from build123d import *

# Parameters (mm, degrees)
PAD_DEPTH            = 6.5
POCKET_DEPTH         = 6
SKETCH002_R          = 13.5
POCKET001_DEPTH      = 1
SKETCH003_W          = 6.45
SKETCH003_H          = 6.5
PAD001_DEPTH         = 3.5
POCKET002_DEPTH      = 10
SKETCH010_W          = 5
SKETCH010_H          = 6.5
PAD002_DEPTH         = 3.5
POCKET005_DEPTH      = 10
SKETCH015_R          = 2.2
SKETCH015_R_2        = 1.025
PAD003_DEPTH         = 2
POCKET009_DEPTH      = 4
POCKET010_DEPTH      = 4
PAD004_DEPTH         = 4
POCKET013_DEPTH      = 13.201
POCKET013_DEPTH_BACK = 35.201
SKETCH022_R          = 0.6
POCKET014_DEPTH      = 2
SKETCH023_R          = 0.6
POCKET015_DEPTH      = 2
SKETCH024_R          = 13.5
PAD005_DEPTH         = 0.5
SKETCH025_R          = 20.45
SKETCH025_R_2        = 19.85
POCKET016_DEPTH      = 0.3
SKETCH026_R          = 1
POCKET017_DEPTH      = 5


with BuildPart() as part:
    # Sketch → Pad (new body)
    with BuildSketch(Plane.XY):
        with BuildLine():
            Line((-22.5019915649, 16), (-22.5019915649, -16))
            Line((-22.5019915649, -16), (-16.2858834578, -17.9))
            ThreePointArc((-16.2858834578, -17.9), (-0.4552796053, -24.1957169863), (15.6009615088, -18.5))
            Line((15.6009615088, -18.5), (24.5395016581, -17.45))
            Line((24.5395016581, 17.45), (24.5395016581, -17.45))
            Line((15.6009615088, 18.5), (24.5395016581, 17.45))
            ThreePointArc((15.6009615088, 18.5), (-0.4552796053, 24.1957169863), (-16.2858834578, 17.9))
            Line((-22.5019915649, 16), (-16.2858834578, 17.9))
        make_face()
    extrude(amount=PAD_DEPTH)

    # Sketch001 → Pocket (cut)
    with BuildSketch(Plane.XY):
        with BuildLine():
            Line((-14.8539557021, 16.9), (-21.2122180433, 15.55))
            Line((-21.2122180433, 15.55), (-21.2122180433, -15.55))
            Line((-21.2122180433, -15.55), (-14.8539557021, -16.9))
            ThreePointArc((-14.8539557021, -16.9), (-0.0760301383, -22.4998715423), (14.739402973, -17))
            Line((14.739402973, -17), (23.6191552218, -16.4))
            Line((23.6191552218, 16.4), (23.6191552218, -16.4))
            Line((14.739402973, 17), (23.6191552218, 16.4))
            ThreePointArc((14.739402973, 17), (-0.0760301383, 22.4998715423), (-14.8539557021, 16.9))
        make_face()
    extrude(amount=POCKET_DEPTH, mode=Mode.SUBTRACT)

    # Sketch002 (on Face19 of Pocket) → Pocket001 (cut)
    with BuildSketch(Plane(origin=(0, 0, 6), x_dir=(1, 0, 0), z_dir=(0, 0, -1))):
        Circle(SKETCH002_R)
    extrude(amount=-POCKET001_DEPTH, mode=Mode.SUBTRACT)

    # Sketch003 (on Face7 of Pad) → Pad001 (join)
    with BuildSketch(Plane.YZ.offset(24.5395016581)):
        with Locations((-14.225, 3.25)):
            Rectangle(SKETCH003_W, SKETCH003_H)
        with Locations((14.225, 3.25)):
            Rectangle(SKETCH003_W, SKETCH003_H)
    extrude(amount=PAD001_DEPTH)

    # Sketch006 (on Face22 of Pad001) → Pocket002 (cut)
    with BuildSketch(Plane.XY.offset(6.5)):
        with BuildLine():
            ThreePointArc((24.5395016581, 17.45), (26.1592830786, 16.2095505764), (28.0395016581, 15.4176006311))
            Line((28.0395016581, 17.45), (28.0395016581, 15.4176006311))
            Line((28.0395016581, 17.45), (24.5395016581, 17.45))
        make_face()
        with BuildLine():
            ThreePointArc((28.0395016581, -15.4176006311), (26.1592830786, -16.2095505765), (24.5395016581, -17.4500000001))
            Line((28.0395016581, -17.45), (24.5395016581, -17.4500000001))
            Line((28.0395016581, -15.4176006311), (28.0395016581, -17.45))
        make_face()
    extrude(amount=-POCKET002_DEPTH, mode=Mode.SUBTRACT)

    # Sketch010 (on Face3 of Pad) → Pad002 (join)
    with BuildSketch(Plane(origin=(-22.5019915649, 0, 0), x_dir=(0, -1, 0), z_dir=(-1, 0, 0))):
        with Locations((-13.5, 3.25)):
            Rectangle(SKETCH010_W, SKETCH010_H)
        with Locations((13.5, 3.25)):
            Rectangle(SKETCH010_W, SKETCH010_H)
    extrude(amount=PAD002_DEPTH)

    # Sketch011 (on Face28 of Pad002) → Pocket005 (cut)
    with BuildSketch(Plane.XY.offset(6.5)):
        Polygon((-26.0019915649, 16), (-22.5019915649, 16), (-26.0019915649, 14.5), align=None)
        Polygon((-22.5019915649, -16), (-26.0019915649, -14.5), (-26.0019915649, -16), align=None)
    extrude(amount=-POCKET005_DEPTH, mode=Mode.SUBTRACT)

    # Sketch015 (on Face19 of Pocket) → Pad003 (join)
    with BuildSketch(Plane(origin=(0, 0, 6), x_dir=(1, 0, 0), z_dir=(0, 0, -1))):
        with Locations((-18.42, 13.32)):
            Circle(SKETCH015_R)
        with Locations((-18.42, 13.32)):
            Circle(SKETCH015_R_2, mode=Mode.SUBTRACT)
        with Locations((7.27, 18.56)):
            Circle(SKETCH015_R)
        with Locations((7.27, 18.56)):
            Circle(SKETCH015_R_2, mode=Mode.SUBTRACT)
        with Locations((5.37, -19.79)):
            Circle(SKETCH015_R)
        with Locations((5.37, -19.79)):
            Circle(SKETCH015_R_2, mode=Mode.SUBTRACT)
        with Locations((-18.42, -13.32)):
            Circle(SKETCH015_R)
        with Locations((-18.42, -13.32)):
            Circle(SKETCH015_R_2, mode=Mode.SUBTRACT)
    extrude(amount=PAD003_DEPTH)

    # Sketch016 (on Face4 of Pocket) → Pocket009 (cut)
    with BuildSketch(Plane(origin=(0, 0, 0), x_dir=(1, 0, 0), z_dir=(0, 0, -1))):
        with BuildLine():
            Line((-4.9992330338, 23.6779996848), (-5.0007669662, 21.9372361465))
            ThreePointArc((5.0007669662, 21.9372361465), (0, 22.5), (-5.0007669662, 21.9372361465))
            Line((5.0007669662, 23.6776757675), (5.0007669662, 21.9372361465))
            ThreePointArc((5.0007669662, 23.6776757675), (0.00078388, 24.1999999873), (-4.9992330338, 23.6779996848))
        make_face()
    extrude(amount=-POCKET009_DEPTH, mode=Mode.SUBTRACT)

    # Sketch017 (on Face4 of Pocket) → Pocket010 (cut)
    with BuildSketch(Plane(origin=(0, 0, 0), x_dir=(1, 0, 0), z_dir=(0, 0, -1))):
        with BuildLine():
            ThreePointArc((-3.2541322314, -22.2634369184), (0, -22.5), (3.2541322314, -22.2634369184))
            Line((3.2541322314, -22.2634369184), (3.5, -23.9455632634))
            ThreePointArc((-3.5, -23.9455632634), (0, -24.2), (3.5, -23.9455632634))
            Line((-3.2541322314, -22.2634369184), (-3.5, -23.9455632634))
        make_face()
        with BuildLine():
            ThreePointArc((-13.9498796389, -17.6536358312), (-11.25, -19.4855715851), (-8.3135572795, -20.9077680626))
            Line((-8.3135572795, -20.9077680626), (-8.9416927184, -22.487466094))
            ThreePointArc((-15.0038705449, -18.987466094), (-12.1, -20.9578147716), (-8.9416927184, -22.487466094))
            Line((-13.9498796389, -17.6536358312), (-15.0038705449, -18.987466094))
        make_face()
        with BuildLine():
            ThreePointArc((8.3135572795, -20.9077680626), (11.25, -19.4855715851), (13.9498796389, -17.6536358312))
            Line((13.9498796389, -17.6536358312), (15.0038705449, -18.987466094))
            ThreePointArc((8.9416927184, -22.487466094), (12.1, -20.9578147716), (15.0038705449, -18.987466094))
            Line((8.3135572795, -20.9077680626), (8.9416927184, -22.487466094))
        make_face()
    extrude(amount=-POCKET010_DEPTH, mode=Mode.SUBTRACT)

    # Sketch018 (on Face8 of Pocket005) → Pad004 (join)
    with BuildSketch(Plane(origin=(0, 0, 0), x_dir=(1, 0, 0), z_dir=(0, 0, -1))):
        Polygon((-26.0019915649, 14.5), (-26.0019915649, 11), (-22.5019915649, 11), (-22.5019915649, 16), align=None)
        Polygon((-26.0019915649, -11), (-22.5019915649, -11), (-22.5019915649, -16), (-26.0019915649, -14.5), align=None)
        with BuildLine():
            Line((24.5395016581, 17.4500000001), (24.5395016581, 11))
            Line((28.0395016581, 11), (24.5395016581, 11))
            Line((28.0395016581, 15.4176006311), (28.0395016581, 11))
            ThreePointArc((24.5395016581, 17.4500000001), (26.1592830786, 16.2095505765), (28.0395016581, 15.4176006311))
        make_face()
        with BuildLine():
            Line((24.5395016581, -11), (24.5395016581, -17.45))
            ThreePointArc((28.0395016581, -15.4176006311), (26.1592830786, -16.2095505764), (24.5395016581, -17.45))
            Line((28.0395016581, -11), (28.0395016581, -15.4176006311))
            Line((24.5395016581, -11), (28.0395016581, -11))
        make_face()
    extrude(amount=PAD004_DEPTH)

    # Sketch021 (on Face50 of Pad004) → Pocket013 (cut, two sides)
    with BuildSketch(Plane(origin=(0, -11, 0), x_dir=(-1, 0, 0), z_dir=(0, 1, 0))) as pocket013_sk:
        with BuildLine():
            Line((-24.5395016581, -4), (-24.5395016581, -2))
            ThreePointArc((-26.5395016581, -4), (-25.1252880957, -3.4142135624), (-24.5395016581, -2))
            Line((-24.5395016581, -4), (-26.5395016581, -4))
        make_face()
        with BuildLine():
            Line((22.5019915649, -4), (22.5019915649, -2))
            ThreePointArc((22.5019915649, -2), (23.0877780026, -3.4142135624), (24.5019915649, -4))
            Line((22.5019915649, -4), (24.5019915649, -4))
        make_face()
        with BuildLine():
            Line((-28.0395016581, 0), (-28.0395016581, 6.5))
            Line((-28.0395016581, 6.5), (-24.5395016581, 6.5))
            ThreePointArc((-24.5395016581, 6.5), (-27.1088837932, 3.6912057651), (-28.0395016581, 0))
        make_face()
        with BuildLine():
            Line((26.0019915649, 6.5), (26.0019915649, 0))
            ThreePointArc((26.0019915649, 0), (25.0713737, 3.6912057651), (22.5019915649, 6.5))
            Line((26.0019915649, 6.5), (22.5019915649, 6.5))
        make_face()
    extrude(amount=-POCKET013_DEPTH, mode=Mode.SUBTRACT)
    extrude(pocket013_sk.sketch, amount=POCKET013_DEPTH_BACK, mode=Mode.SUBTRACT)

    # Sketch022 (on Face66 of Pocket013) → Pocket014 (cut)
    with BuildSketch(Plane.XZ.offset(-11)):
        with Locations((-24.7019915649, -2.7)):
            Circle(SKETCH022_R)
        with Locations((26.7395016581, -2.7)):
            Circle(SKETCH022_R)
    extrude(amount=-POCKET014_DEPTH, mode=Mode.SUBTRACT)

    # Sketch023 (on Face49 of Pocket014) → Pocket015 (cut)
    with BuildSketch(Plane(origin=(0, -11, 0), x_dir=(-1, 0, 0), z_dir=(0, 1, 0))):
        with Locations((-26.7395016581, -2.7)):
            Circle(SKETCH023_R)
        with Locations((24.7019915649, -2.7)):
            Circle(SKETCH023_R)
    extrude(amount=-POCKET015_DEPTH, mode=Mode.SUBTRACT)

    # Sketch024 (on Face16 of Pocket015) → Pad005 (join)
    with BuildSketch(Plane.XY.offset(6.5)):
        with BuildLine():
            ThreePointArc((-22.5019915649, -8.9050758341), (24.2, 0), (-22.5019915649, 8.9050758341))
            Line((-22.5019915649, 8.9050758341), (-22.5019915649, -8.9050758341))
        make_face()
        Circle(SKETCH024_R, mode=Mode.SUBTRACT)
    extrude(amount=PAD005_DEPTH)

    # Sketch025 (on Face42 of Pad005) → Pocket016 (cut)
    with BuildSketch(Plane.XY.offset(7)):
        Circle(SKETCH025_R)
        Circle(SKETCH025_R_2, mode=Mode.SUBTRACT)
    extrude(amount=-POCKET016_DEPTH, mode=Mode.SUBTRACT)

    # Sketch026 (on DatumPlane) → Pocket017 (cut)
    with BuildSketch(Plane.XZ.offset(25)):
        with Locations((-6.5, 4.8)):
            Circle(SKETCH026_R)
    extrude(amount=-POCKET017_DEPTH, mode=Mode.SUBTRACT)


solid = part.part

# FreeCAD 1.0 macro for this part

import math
import FreeCAD as App
import Part
import Sketcher

V = App.Vector
Q = App.Units.Quantity

doc = App.newDocument("Part")
body = doc.addObject("PartDesign::Body", "Body")

sketch1 = body.newObject("Sketcher::SketchObject", "Sketch")
sketch1.AttachmentSupport = (doc.getObject("XY_Plane"), [""])
sketch1.MapMode = "FlatFace"
sketch1.addGeometry([
    Part.LineSegment(V(-22.501992, 16, 0), V(-22.501992, -16, 0)),
    Part.LineSegment(V(-22.501992, -16, 0), V(-16.285883, -17.9, 0)),
    Part.ArcOfCircle(Part.Circle(V(0, 0, 0), V(0, 0, 1), 24.2), math.radians(-132.296737), math.radians(-49.859225)),
    Part.LineSegment(V(15.600962, -18.5, 0), V(24.539502, -17.45, 0)),
    Part.LineSegment(V(24.539502, -17.45, 0), V(24.539502, 17.45, 0)),
    Part.LineSegment(V(24.539502, 17.45, 0), V(15.600962, 18.5, 0)),
    Part.ArcOfCircle(Part.Circle(V(0, 0, 0), V(0, 0, 1), 24.2), math.radians(49.859225), math.radians(132.296737)),
    Part.LineSegment(V(-16.285883, 17.9, 0), V(-22.501992, 16, 0)),
], False)
sketch1.addConstraint([
    Sketcher.Constraint("Coincident", 0, 2, 1, 1),
    Sketcher.Constraint("Coincident", 1, 2, 2, 1),
    Sketcher.Constraint("Coincident", 2, 2, 3, 1),
    Sketcher.Constraint("Coincident", 3, 2, 4, 1),
    Sketcher.Constraint("Coincident", 4, 2, 5, 1),
    Sketcher.Constraint("Coincident", 5, 2, 6, 1),
    Sketcher.Constraint("Coincident", 6, 2, 7, 1),
    Sketcher.Constraint("Coincident", 7, 2, 0, 1),
    Sketcher.Constraint("Vertical", 0),
    Sketcher.Constraint("Vertical", 4),
    Sketcher.Constraint("Coincident", 2, 3, -1, 1),
    Sketcher.Constraint("Coincident", 6, 3, -1, 1),
    Sketcher.Constraint("Equal", 2, 6),
    Sketcher.Constraint("Vertical", 2, 2, 5, 2),
    Sketcher.Constraint("Vertical", 1, 2, 6, 2),
    Sketcher.Constraint("Equal", 3, 5),
    Sketcher.Constraint("Equal", 1, 7),
    Sketcher.Constraint("Radius", 2, Q("24.2 mm")),
    Sketcher.Constraint("DistanceY", 0, 2, 0, 1, Q("32 mm")),
    Sketcher.Constraint("Distance", 3, Q("9 mm")),
    Sketcher.Constraint("DistanceY", 4, 1, 4, 2, Q("34.9 mm")),
    Sketcher.Constraint("DistanceY", 2, 2, 5, 2, Q("37 mm")),
    Sketcher.Constraint("Distance", 1, Q("6.5 mm")),
    Sketcher.Constraint("DistanceY", 1, 2, -1, 1, Q("17.9 mm")),
])
pad1 = body.newObject("PartDesign::Pad", "Pad")
pad1.Profile = sketch1
pad1.Length = 6.5

sketch2 = body.newObject("Sketcher::SketchObject", "Sketch001")
sketch2.AttachmentSupport = (doc.getObject("XY_Plane"), [""])
sketch2.MapMode = "FlatFace"
sketch2.addGeometry([
    Part.LineSegment(V(-14.853956, 16.9, 0), V(-21.212218, 15.55, 0)),
    Part.LineSegment(V(-21.212218, 15.55, 0), V(-21.212218, -15.55, 0)),
    Part.LineSegment(V(-21.212218, -15.55, 0), V(-14.853956, -16.9, 0)),
    Part.ArcOfCircle(Part.Circle(V(0, 0, 0), V(0, 0, 1), 22.5), math.radians(-131.313282), math.radians(-49.073937)),
    Part.LineSegment(V(14.739403, -17, 0), V(23.619155, -16.4, 0)),
    Part.LineSegment(V(23.619155, -16.4, 0), V(23.619155, 16.4, 0)),
    Part.LineSegment(V(23.619155, 16.4, 0), V(14.739403, 17, 0)),
    Part.ArcOfCircle(Part.Circle(V(0, 0, 0), V(0, 0, 1), 22.5), math.radians(49.073937), math.radians(131.313282)),
], False)
sketch2.addConstraint([
    Sketcher.Constraint("Coincident", 0, 2, 1, 1),
    Sketcher.Constraint("Coincident", 1, 2, 2, 1),
    Sketcher.Constraint("Coincident", 2, 2, 3, 1),
    Sketcher.Constraint("Coincident", 3, 2, 4, 1),
    Sketcher.Constraint("Coincident", 4, 2, 5, 1),
    Sketcher.Constraint("Coincident", 5, 2, 6, 1),
    Sketcher.Constraint("Coincident", 6, 2, 7, 1),
    Sketcher.Constraint("Coincident", 7, 2, 0, 1),
    Sketcher.Constraint("Vertical", 1),
    Sketcher.Constraint("Vertical", 5),
    Sketcher.Constraint("Coincident", 3, 3, -1, 1),
    Sketcher.Constraint("Coincident", 7, 3, -1, 1),
    Sketcher.Constraint("Equal", 3, 7),
    Sketcher.Constraint("Vertical", 3, 2, 6, 2),
    Sketcher.Constraint("Vertical", 2, 2, 7, 2),
    Sketcher.Constraint("Equal", 0, 2),
    Sketcher.Constraint("Equal", 4, 6),
    Sketcher.Constraint("Radius", 3, Q("22.5 mm")),
    Sketcher.Constraint("DistanceY", 1, 2, 1, 1, Q("31.1 mm")),
    Sketcher.Constraint("DistanceY", 5, 1, 5, 2, Q("32.8 mm")),
    Sketcher.Constraint("DistanceY", 3, 2, -1, 1, Q("17 mm")),
    Sketcher.Constraint("Distance", 0, Q("6.5 mm")),
    Sketcher.Constraint("Distance", 4, Q("8.9 mm")),
    Sketcher.Constraint("DistanceY", 2, 2, -1, 1, Q("16.9 mm")),
])
pocket1 = body.newObject("PartDesign::Pocket", "Pocket")
pocket1.Profile = sketch2
pocket1.Length = 6
pocket1.Reversed = True

sketch3 = body.newObject("Sketcher::SketchObject", "Sketch002")
sketch3.AttachmentSupport = (doc.getObject("XY_Plane"), [""])
sketch3.MapMode = "FlatFace"
sketch3.AttachmentOffset = App.Placement(V(0, 0, 6), App.Rotation())
sketch3.addGeometry(Part.Circle(V(0, 0, 0), V(0, 0, 1), 13.5), False)
sketch3.addConstraint([
    Sketcher.Constraint("Coincident", 0, 3, -1, 1),
    Sketcher.Constraint("Diameter", 0, Q("27 mm")),
])
pocket2 = body.newObject("PartDesign::Pocket", "Pocket001")
pocket2.Profile = sketch3
pocket2.Length = 1
pocket2.Reversed = True

sketch4 = body.newObject("Sketcher::SketchObject", "Sketch003")
sketch4.AttachmentSupport = (doc.getObject("YZ_Plane"), [""])
sketch4.MapMode = "FlatFace"
sketch4.AttachmentOffset = App.Placement(V(0, 0, 24.539502), App.Rotation())
sketch4.addGeometry([
    Part.LineSegment(V(-17.45, 6.5, 0), V(-17.45, 0, 0)),
    Part.LineSegment(V(-17.45, 0, 0), V(-11, 0, 0)),
    Part.LineSegment(V(-11, 0, 0), V(-11, 6.5, 0)),
    Part.LineSegment(V(-11, 6.5, 0), V(-17.45, 6.5, 0)),
    Part.LineSegment(V(11, 6.5, 0), V(11, 0, 0)),
    Part.LineSegment(V(11, 0, 0), V(17.45, 0, 0)),
    Part.LineSegment(V(17.45, 0, 0), V(17.45, 6.5, 0)),
    Part.LineSegment(V(17.45, 6.5, 0), V(11, 6.5, 0)),
], False)
sketch4.addConstraint([
    Sketcher.Constraint("Coincident", 0, 2, 1, 1),
    Sketcher.Constraint("Coincident", 1, 2, 2, 1),
    Sketcher.Constraint("Coincident", 2, 2, 3, 1),
    Sketcher.Constraint("Coincident", 3, 2, 0, 1),
    Sketcher.Constraint("Coincident", 4, 2, 5, 1),
    Sketcher.Constraint("Coincident", 5, 2, 6, 1),
    Sketcher.Constraint("Coincident", 6, 2, 7, 1),
    Sketcher.Constraint("Coincident", 7, 2, 4, 1),
    Sketcher.Constraint("Vertical", 0),
    Sketcher.Constraint("Horizontal", 1),
    Sketcher.Constraint("Vertical", 2),
    Sketcher.Constraint("Horizontal", 3),
    Sketcher.Constraint("Vertical", 4),
    Sketcher.Constraint("Horizontal", 5),
    Sketcher.Constraint("Vertical", 6),
    Sketcher.Constraint("Horizontal", 7),
    Sketcher.Constraint("Symmetric", 1, 2, 4, 2, -1, 1),
    Sketcher.Constraint("Symmetric", 0, 2, 5, 2, -2),
    Sketcher.Constraint("Horizontal", 3, 2, 6, 2),
    Sketcher.Constraint("DistanceY", 0, 2, 0, 1, Q("6.5 mm")),
    Sketcher.Constraint("DistanceX", 1, 2, -1, 1, Q("11 mm")),
    Sketcher.Constraint("DistanceX", 1, 1, 1, 2, Q("6.45 mm")),
])
pad2 = body.newObject("PartDesign::Pad", "Pad001")
pad2.Profile = sketch4
pad2.Length = 3.5

sketch5 = body.newObject("Sketcher::SketchObject", "Sketch004")
sketch5.AttachmentSupport = (doc.getObject("XY_Plane"), [""])
sketch5.MapMode = "FlatFace"
sketch5.AttachmentOffset = App.Placement(V(0, 0, 6.5), App.Rotation())
sketch5.addGeometry([
    Part.ArcOfCircle(Part.Circle(V(30.189502, 23.15, 0), V(0, 0, 1), 8.02574), math.radians(-134.747597), math.radians(-105.538634)),
    Part.LineSegment(V(28.039502, 15.417601, 0), V(28.039502, 17.45, 0)),
    Part.LineSegment(V(28.039502, 17.45, 0), V(24.539502, 17.45, 0)),
    Part.ArcOfCircle(Part.Circle(V(30.189502, -23.15, 0), V(0, 0, 1), 8.02574), math.radians(105.538634), math.radians(134.747597)),
    Part.LineSegment(V(24.539502, -17.45, 0), V(28.039502, -17.45, 0)),
    Part.LineSegment(V(28.039502, -17.45, 0), V(28.039502, -15.417601, 0)),
], False)
sketch5.addConstraint([
    Sketcher.Constraint("Coincident", 0, 2, 1, 1),
    Sketcher.Constraint("Coincident", 1, 2, 2, 1),
    Sketcher.Constraint("Coincident", 2, 2, 0, 1),
    Sketcher.Constraint("Coincident", 3, 2, 4, 1),
    Sketcher.Constraint("Coincident", 4, 2, 5, 1),
    Sketcher.Constraint("Coincident", 5, 2, 3, 1),
    Sketcher.Constraint("Vertical", 1),
    Sketcher.Constraint("Horizontal", 2),
    Sketcher.Constraint("Horizontal", 4),
    Sketcher.Constraint("Vertical", 5),
    Sketcher.Constraint("Equal", 0, 3),
    Sketcher.Constraint("Symmetric", 0, 3, 3, 3, -1),
    Sketcher.Constraint("Symmetric", 1, 2, 4, 2, -1),
    Sketcher.Constraint("DistanceX", 2, 2, 2, 1, Q("3.5 mm")),
    Sketcher.Constraint("DistanceY", 3, 3, 0, 3, Q("46.3 mm")),
    Sketcher.Constraint("DistanceY", 1, 2, 0, 3, Q("5.7 mm")),
    Sketcher.Constraint("Radius", 0, Q("8.02574 mm")),
    Sketcher.Constraint("DistanceX", -1, 1, 0, 3, Q("30.189502 mm")),
])
pocket3 = body.newObject("PartDesign::Pocket", "Pocket002")
pocket3.Profile = sketch5
pocket3.Length = 10

sketch6 = body.newObject("Sketcher::SketchObject", "Sketch005")
sketch6.AttachmentSupport = (doc.getObject("YZ_Plane"), [""])
sketch6.MapMode = "FlatFace"
sketch6.AttachmentOffset = App.Placement(V(0, 0, -22.501992), App.Rotation())
sketch6.addGeometry([
    Part.LineSegment(V(16, 6.5, 0), V(16, 0, 0)),
    Part.LineSegment(V(16, 0, 0), V(11, 0, 0)),
    Part.LineSegment(V(11, 0, 0), V(11, 6.5, 0)),
    Part.LineSegment(V(11, 6.5, 0), V(16, 6.5, 0)),
    Part.LineSegment(V(-11, 6.5, 0), V(-11, 0, 0)),
    Part.LineSegment(V(-11, 0, 0), V(-16, 0, 0)),
    Part.LineSegment(V(-16, 0, 0), V(-16, 6.5, 0)),
    Part.LineSegment(V(-16, 6.5, 0), V(-11, 6.5, 0)),
], False)
sketch6.addConstraint([
    Sketcher.Constraint("Coincident", 0, 2, 1, 1),
    Sketcher.Constraint("Coincident", 1, 2, 2, 1),
    Sketcher.Constraint("Coincident", 2, 2, 3, 1),
    Sketcher.Constraint("Coincident", 3, 2, 0, 1),
    Sketcher.Constraint("Coincident", 4, 2, 5, 1),
    Sketcher.Constraint("Coincident", 5, 2, 6, 1),
    Sketcher.Constraint("Coincident", 6, 2, 7, 1),
    Sketcher.Constraint("Coincident", 7, 2, 4, 1),
    Sketcher.Constraint("Vertical", 0),
    Sketcher.Constraint("Horizontal", 1),
    Sketcher.Constraint("Vertical", 2),
    Sketcher.Constraint("Horizontal", 3),
    Sketcher.Constraint("Vertical", 4),
    Sketcher.Constraint("Horizontal", 5),
    Sketcher.Constraint("Vertical", 6),
    Sketcher.Constraint("Horizontal", 7),
    Sketcher.Constraint("Symmetric", 1, 2, 4, 2, -1, 1),
    Sketcher.Constraint("Symmetric", 0, 2, 5, 2, -2),
    Sketcher.Constraint("Horizontal", 3, 2, 6, 2),
    Sketcher.Constraint("DistanceX", 1, 2, 1, 1, Q("5 mm")),
    Sketcher.Constraint("DistanceY", 0, 2, 0, 1, Q("6.5 mm")),
    Sketcher.Constraint("DistanceX", -1, 1, 0, 2, Q("16 mm")),
])
pad3 = body.newObject("PartDesign::Pad", "Pad002")
pad3.Profile = sketch6
pad3.Length = 3.5
pad3.Reversed = True

sketch7 = body.newObject("Sketcher::SketchObject", "Sketch006")
sketch7.AttachmentSupport = (doc.getObject("XY_Plane"), [""])
sketch7.MapMode = "FlatFace"
sketch7.AttachmentOffset = App.Placement(V(0, 0, 6.5), App.Rotation())
sketch7.addGeometry([
    Part.LineSegment(V(-22.501992, 16, 0), V(-26.001992, 16, 0)),
    Part.LineSegment(V(-26.001992, 16, 0), V(-26.001992, 14.5, 0)),
    Part.LineSegment(V(-26.001992, 14.5, 0), V(-22.501992, 16, 0)),
    Part.LineSegment(V(-22.501992, -16, 0), V(-26.001992, -14.5, 0)),
    Part.LineSegment(V(-26.001992, -14.5, 0), V(-26.001992, -16, 0)),
    Part.LineSegment(V(-26.001992, -16, 0), V(-22.501992, -16, 0)),
], False)
sketch7.addConstraint([
    Sketcher.Constraint("Coincident", 0, 2, 1, 1),
    Sketcher.Constraint("Coincident", 1, 2, 2, 1),
    Sketcher.Constraint("Coincident", 2, 2, 0, 1),
    Sketcher.Constraint("Coincident", 3, 2, 4, 1),
    Sketcher.Constraint("Coincident", 4, 2, 5, 1),
    Sketcher.Constraint("Coincident", 5, 2, 3, 1),
    Sketcher.Constraint("Horizontal", 0),
    Sketcher.Constraint("Vertical", 1),
    Sketcher.Constraint("Vertical", 4),
    Sketcher.Constraint("Horizontal", 5),
    Sketcher.Constraint("Symmetric", 1, 2, 3, 2, -1),
    Sketcher.Constraint("Symmetric", 2, 2, 5, 2, -1),
    Sketcher.Constraint("DistanceX", 0, 2, 0, 1, Q("3.5 mm")),
    Sketcher.Constraint("DistanceY", 1, 2, 1, 1, Q("1.5 mm")),
    Sketcher.Constraint("DistanceY", -1, 1, 0, 2, Q("16 mm")),
    Sketcher.Constraint("DistanceX", 0, 2, -1, 1, Q("26.001992 mm")),
])
pocket4 = body.newObject("PartDesign::Pocket", "Pocket003")
pocket4.Profile = sketch7
pocket4.Length = 10

sketch8 = body.newObject("Sketcher::SketchObject", "Sketch007")
sketch8.AttachmentSupport = (doc.getObject("XY_Plane"), [""])
sketch8.MapMode = "FlatFace"
sketch8.AttachmentOffset = App.Placement(V(0, 0, 6), App.Rotation())
sketch8.addGeometry([
    Part.Circle(V(-18.42, -13.32, 0), V(0, 0, 1), 2.2),
    Part.Circle(V(-18.42, -13.32, 0), V(0, 0, 1), 1.025),
    Part.Circle(V(7.27, -18.56, 0), V(0, 0, 1), 2.2),
    Part.Circle(V(7.27, -18.56, 0), V(0, 0, 1), 1.025),
    Part.Circle(V(5.37, 19.79, 0), V(0, 0, 1), 2.2),
    Part.Circle(V(5.37, 19.79, 0), V(0, 0, 1), 1.025),
    Part.Circle(V(-18.42, 13.32, 0), V(0, 0, 1), 2.2),
    Part.Circle(V(-18.42, 13.32, 0), V(0, 0, 1), 1.025),
], False)
sketch8.addConstraint([
    Sketcher.Constraint("Coincident", 1, 3, 0, 3),
    Sketcher.Constraint("Coincident", 3, 3, 2, 3),
    Sketcher.Constraint("Coincident", 5, 3, 4, 3),
    Sketcher.Constraint("Coincident", 7, 3, 6, 3),
    Sketcher.Constraint("Equal", 0, 2),
    Sketcher.Constraint("Equal", 1, 3),
    Sketcher.Constraint("Equal", 2, 4),
    Sketcher.Constraint("Equal", 3, 5),
    Sketcher.Constraint("Equal", 4, 6),
    Sketcher.Constraint("Equal", 5, 7),
    Sketcher.Constraint("Symmetric", 0, 3, 6, 3, -1),
    Sketcher.Constraint("Diameter", 0, Q("4.4 mm")),
    Sketcher.Constraint("Diameter", 1, Q("2.05 mm")),
    Sketcher.Constraint("DistanceX", 4, 3, 2, 3, Q("1.9 mm")),
    Sketcher.Constraint("DistanceX", 0, 3, -1, 1, Q("18.42 mm")),
    Sketcher.Constraint("DistanceY", 0, 3, -1, 1, Q("13.32 mm")),
    Sketcher.Constraint("DistanceX", -1, 1, 2, 3, Q("7.27 mm")),
    Sketcher.Constraint("DistanceY", 2, 3, -1, 1, Q("18.56 mm")),
    Sketcher.Constraint("DistanceY", -1, 1, 4, 3, Q("19.79 mm")),
])
pad4 = body.newObject("PartDesign::Pad", "Pad003")
pad4.Profile = sketch8
pad4.Length = 2
pad4.Reversed = True

sketch9 = body.newObject("Sketcher::SketchObject", "Sketch008")
sketch9.AttachmentSupport = (doc.getObject("XY_Plane"), [""])
sketch9.MapMode = "FlatFace"
sketch9.addGeometry([
    Part.LineSegment(V(-4.999233, -23.678, 0), V(-5.000767, -21.937236, 0)),
    Part.ArcOfCircle(Part.Circle(V(0, 0, 0), V(0, 0, 1), 22.5), math.radians(-102.841592), math.radians(-77.158408)),
    Part.LineSegment(V(5.000767, -21.937236, 0), V(5.000767, -23.677676, 0)),
    Part.ArcOfCircle(Part.Circle(V(0, 0, 0), V(0, 0, 1), 24.2), math.radians(-101.921999), math.radians(-78.074289)),
], False)
sketch9.addConstraint([
    Sketcher.Constraint("Coincident", 0, 2, 1, 1),
    Sketcher.Constraint("Coincident", 1, 2, 2, 1),
    Sketcher.Constraint("Coincident", 2, 2, 3, 2),
    Sketcher.Constraint("Coincident", 3, 1, 0, 1),
    Sketcher.Constraint("Vertical", 2),
    Sketcher.Constraint("Coincident", 1, 3, -1, 1),
    Sketcher.Constraint("Coincident", 3, 3, -1, 1),
    Sketcher.Constraint("Horizontal", 0, 2, 1, 2),
    Sketcher.Constraint("Radius", 1, Q("22.5 mm")),
    Sketcher.Constraint("Radius", 3, Q("24.2 mm")),
    Sketcher.Constraint("DistanceX", 3, 1, 2, 2, Q("10 mm")),
    Sketcher.Constraint("DistanceY", 3, 1, -1, 1, Q("23.678 mm")),
])
pocket5 = body.newObject("PartDesign::Pocket", "Pocket004")
pocket5.Profile = sketch9
pocket5.Length = 4
pocket5.Reversed = True

sketch10 = body.newObject("Sketcher::SketchObject", "Sketch009")
sketch10.AttachmentSupport = (doc.getObject("XY_Plane"), [""])
sketch10.MapMode = "FlatFace"
sketch10.addGeometry([
    Part.ArcOfCircle(Part.Circle(V(0, 0, 0), V(0, 0, 1), 22.5), math.radians(81.684256), math.radians(98.315744)),
    Part.LineSegment(V(-3.254132, 22.263437, 0), V(-3.5, 23.945563, 0)),
    Part.ArcOfCircle(Part.Circle(V(0, 0, 0), V(0, 0, 1), 24.2), math.radians(81.684256), math.radians(98.315744)),
    Part.LineSegment(V(3.5, 23.945563, 0), V(3.254132, 22.263437, 0)),
    Part.ArcOfCircle(Part.Circle(V(0, 0, 0), V(0, 0, 1), 22.5), math.radians(111.684256), math.radians(128.315744)),
    Part.LineSegment(V(-13.94988, 17.653636, 0), V(-15.003871, 18.987466, 0)),
    Part.ArcOfCircle(Part.Circle(V(0, 0, 0), V(0, 0, 1), 24.2), math.radians(111.684256), math.radians(128.315744)),
    Part.LineSegment(V(-8.941693, 22.487466, 0), V(-8.313557, 20.907768, 0)),
    Part.ArcOfCircle(Part.Circle(V(0, 0, 0), V(0, 0, 1), 22.5), math.radians(51.684256), math.radians(68.315744)),
    Part.LineSegment(V(8.313557, 20.907768, 0), V(8.941693, 22.487466, 0)),
    Part.ArcOfCircle(Part.Circle(V(0, 0, 0), V(0, 0, 1), 24.2), math.radians(51.684256), math.radians(68.315744)),
    Part.LineSegment(V(15.003871, 18.987466, 0), V(13.94988, 17.653636, 0)),
], False)
sketch10.addConstraint([
    Sketcher.Constraint("Coincident", 0, 2, 1, 1),
    Sketcher.Constraint("Coincident", 1, 2, 2, 2),
    Sketcher.Constraint("Coincident", 2, 1, 3, 1),
    Sketcher.Constraint("Coincident", 3, 2, 0, 1),
    Sketcher.Constraint("Coincident", 4, 2, 5, 1),
    Sketcher.Constraint("Coincident", 5, 2, 6, 2),
    Sketcher.Constraint("Coincident", 6, 1, 7, 1),
    Sketcher.Constraint("Coincident", 7, 2, 4, 1),
    Sketcher.Constraint("Coincident", 8, 2, 9, 1),
    Sketcher.Constraint("Coincident", 9, 2, 10, 2),
    Sketcher.Constraint("Coincident", 10, 1, 11, 1),
    Sketcher.Constraint("Coincident", 11, 2, 8, 1),
    Sketcher.Constraint("Coincident", 0, 3, -1, 1),
    Sketcher.Constraint("Coincident", 2, 3, -1, 1),
    Sketcher.Constraint("Coincident", 4, 3, -1, 1),
    Sketcher.Constraint("Coincident", 6, 3, -1, 1),
    Sketcher.Constraint("Coincident", 8, 3, -1, 1),
    Sketcher.Constraint("Coincident", 10, 3, -1, 1),
    Sketcher.Constraint("Equal", 0, 4),
    Sketcher.Constraint("Equal", 2, 6),
    Sketcher.Constraint("Equal", 4, 8),
    Sketcher.Constraint("Equal", 6, 10),
    Sketcher.Constraint("Horizontal", 1, 2, 2, 1),
    Sketcher.Constraint("Horizontal", 0, 2, 3, 2),
    Sketcher.Constraint("Horizontal", 7, 2, 8, 2),
    Sketcher.Constraint("Horizontal", 6, 1, 9, 2),
    Sketcher.Constraint("Horizontal", 5, 2, 10, 1),
    Sketcher.Constraint("Horizontal", 4, 2, 11, 2),
    Sketcher.Constraint("Radius", 0, Q("22.5 mm")),
    Sketcher.Constraint("Radius", 2, Q("24.2 mm")),
    Sketcher.Constraint("DistanceX", 1, 2, 2, 1, Q("7 mm")),
    Sketcher.Constraint("DistanceY", 5, 2, 6, 1, Q("3.5 mm")),
    Sketcher.Constraint("DistanceY", 4, 2, 0, 2, Q("4.609801 mm")),
    Sketcher.Constraint("DistanceY", 7, 2, 6, 1, Q("1.579698 mm")),
    Sketcher.Constraint("DistanceX", 4, 2, -1, 1, Q("13.94988 mm")),
    Sketcher.Constraint("DistanceX", 5, 2, -1, 1, Q("15.003871 mm")),
])
pocket6 = body.newObject("PartDesign::Pocket", "Pocket005")
pocket6.Profile = sketch10
pocket6.Length = 4
pocket6.Reversed = True

sketch11 = body.newObject("Sketcher::SketchObject", "Sketch010")
sketch11.AttachmentSupport = (doc.getObject("XY_Plane"), [""])
sketch11.MapMode = "FlatFace"
sketch11.addGeometry([
    Part.LineSegment(V(-26.001992, -14.5, 0), V(-26.001992, -11, 0)),
    Part.LineSegment(V(-26.001992, -11, 0), V(-22.501992, -11, 0)),
    Part.LineSegment(V(-22.501992, -11, 0), V(-22.501992, -16, 0)),
    Part.LineSegment(V(-22.501992, -16, 0), V(-26.001992, -14.5, 0)),
    Part.LineSegment(V(-22.501992, 11, 0), V(-26.001992, 11, 0)),
    Part.LineSegment(V(-26.001992, 11, 0), V(-26.001992, 14.5, 0)),
    Part.LineSegment(V(-26.001992, 14.5, 0), V(-22.501992, 16, 0)),
    Part.LineSegment(V(-22.501992, 16, 0), V(-22.501992, 11, 0)),
    Part.LineSegment(V(24.539502, -17.45, 0), V(24.539502, -11, 0)),
    Part.LineSegment(V(24.539502, -11, 0), V(28.039502, -11, 0)),
    Part.LineSegment(V(28.039502, -11, 0), V(28.039502, -15.417601, 0)),
    Part.ArcOfCircle(Part.Circle(V(30.189502, -23.15, 0), V(0, 0, 1), 8.02574), math.radians(105.538634), math.radians(134.747597)),
    Part.LineSegment(V(24.539502, 11, 0), V(24.539502, 17.45, 0)),
    Part.ArcOfCircle(Part.Circle(V(30.189502, 23.15, 0), V(0, 0, 1), 8.02574), math.radians(-134.747597), math.radians(-105.538634)),
    Part.LineSegment(V(28.039502, 15.417601, 0), V(28.039502, 11, 0)),
    Part.LineSegment(V(28.039502, 11, 0), V(24.539502, 11, 0)),
], False)
sketch11.addConstraint([
    Sketcher.Constraint("Coincident", 0, 2, 1, 1),
    Sketcher.Constraint("Coincident", 1, 2, 2, 1),
    Sketcher.Constraint("Coincident", 2, 2, 3, 1),
    Sketcher.Constraint("Coincident", 3, 2, 0, 1),
    Sketcher.Constraint("Coincident", 4, 2, 5, 1),
    Sketcher.Constraint("Coincident", 5, 2, 6, 1),
    Sketcher.Constraint("Coincident", 6, 2, 7, 1),
    Sketcher.Constraint("Coincident", 7, 2, 4, 1),
    Sketcher.Constraint("Coincident", 8, 2, 9, 1),
    Sketcher.Constraint("Coincident", 9, 2, 10, 1),
    Sketcher.Constraint("Coincident", 10, 2, 11, 1),
    Sketcher.Constraint("Coincident", 11, 2, 8, 1),
    Sketcher.Constraint("Coincident", 12, 2, 13, 1),
    Sketcher.Constraint("Coincident", 13, 2, 14, 1),
    Sketcher.Constraint("Coincident", 14, 2, 15, 1),
    Sketcher.Constraint("Coincident", 15, 2, 12, 1),
    Sketcher.Constraint("Vertical", 0),
    Sketcher.Constraint("Horizontal", 1),
    Sketcher.Constraint("Vertical", 2),
    Sketcher.Constraint("Horizontal", 4),
    Sketcher.Constraint("Vertical", 5),
    Sketcher.Constraint("Vertical", 7),
    Sketcher.Constraint("Vertical", 8),
    Sketcher.Constraint("Horizontal", 9),
    Sketcher.Constraint("Vertical", 10),
    Sketcher.Constraint("Vertical", 12),
    Sketcher.Constraint("Vertical", 14),
    Sketcher.Constraint("Horizontal", 15),
    Sketcher.Constraint("Equal", 11, 13),
    Sketcher.Constraint("Symmetric", 11, 3, 13, 3, -1),
    Sketcher.Constraint("Symmetric", 0, 2, 4, 2, -1),
    Sketcher.Constraint("Symmetric", 2, 2, 6, 2, -1),
    Sketcher.Constraint("Symmetric", 9, 2, 14, 2, -1),
    Sketcher.Constraint("Horizontal", 1, 2, 8, 2),
    Sketcher.Constraint("Vertical", 11, 2, 12, 2),
    Sketcher.Constraint("Equal", 4, 9),
    Sketcher.Constraint("Equal", 15, 0),
    Sketcher.Constraint("Equal", 0, 5),
    Sketcher.Constraint("DistanceY", 2, 2, 2, 1, Q("5 mm")),
    Sketcher.Constraint("DistanceX", 1, 1, 1, 2, Q("3.5 mm")),
    Sketcher.Constraint("DistanceY", 0, 2, -1, 1, Q("11 mm")),
    Sketcher.Constraint("DistanceY", 8, 1, 8, 2, Q("6.45 mm")),
    Sketcher.Constraint("DistanceY", 11, 3, 13, 3, Q("46.3 mm")),
    Sketcher.Constraint("Radius", 11, Q("8.02574 mm")),
    Sketcher.Constraint("DistanceX", -1, 1, 11, 3, Q("30.189502 mm")),
    Sketcher.Constraint("DistanceX", 0, 2, -1, 1, Q("26.001992 mm")),
])
pad5 = body.newObject("PartDesign::Pad", "Pad004")
pad5.Profile = sketch11
pad5.Length = 4
pad5.Reversed = True

sketch12 = body.newObject("Sketcher::SketchObject", "Sketch011")
sketch12.AttachmentSupport = (doc.getObject("XZ_Plane"), [""])
sketch12.MapMode = "FlatFace"
sketch12.AttachmentOffset = App.Placement(V(0, 0, 11), App.Rotation())
sketch12.addGeometry([
    Part.LineSegment(V(24.539502, -4, 0), V(24.539502, -2, 0)),
    Part.ArcOfCircle(Part.Circle(V(26.539502, -2, 0), V(0, 0, 1), 2), math.radians(180), math.radians(270)),
    Part.LineSegment(V(26.539502, -4, 0), V(24.539502, -4, 0)),
    Part.LineSegment(V(-22.501992, -2, 0), V(-22.501992, -4, 0)),
    Part.LineSegment(V(-22.501992, -4, 0), V(-24.501992, -4, 0)),
    Part.ArcOfCircle(Part.Circle(V(-24.501992, -2, 0), V(0, 0, 1), 2), math.radians(-90), math.radians(0)),
    Part.LineSegment(V(28.039502, 6.5, 0), V(28.039502, 0, 0)),
    Part.ArcOfCircle(Part.Circle(V(20.253787, 0, 0), V(0, 0, 1), 7.785714), math.radians(0), math.radians(56.601512)),
    Part.LineSegment(V(24.539502, 6.5, 0), V(28.039502, 6.5, 0)),
    Part.LineSegment(V(-26.001992, 0, 0), V(-26.001992, 6.5, 0)),
    Part.LineSegment(V(-26.001992, 6.5, 0), V(-22.501992, 6.5, 0)),
    Part.ArcOfCircle(Part.Circle(V(-18.216277, 0, 0), V(0, 0, 1), 7.785714), math.radians(123.398488), math.radians(180)),
], False)
sketch12.addConstraint([
    Sketcher.Constraint("Tangent", 0, 2, 1, 1),
    Sketcher.Constraint("Tangent", 1, 2, 2, 1),
    Sketcher.Constraint("Coincident", 2, 2, 0, 1),
    Sketcher.Constraint("Coincident", 3, 2, 4, 1),
    Sketcher.Constraint("Tangent", 4, 2, 5, 1),
    Sketcher.Constraint("Tangent", 5, 2, 3, 1),
    Sketcher.Constraint("Tangent", 6, 2, 7, 1),
    Sketcher.Constraint("Coincident", 7, 2, 8, 1),
    Sketcher.Constraint("Coincident", 8, 2, 6, 1),
    Sketcher.Constraint("Coincident", 9, 2, 10, 1),
    Sketcher.Constraint("Coincident", 10, 2, 11, 1),
    Sketcher.Constraint("Tangent", 11, 2, 9, 1),
    Sketcher.Constraint("Vertical", 0),
    Sketcher.Constraint("Horizontal", 2),
    Sketcher.Constraint("Vertical", 3),
    Sketcher.Constraint("Horizontal", 4),
    Sketcher.Constraint("Vertical", 6),
    Sketcher.Constraint("Horizontal", 8),
    Sketcher.Constraint("Vertical", 9),
    Sketcher.Constraint("Horizontal", 10),
    Sketcher.Constraint("Equal", 1, 5),
    Sketcher.Constraint("Equal", 7, 11),
    Sketcher.Constraint("PointOnObject", 7, 3, -1),
    Sketcher.Constraint("PointOnObject", 11, 3, -1),
    Sketcher.Constraint("Horizontal", 1, 3, 5, 3),
    Sketcher.Constraint("Horizontal", 8, 2, 9, 2),
    Sketcher.Constraint("Vertical", 2, 2, 7, 2),
    Sketcher.Constraint("Vertical", 5, 2, 10, 2),
    Sketcher.Constraint("Radius", 1, Q("2 mm")),
    Sketcher.Constraint("DistanceX", 8, 1, 8, 2, Q("3.5 mm")),
    Sketcher.Constraint("DistanceY", 6, 2, 6, 1, Q("6.5 mm")),
    Sketcher.Constraint("DistanceY", 1, 3, -1, 1, Q("2 mm")),
    Sketcher.Constraint("DistanceX", -1, 1, 1, 3, Q("26.539502 mm")),
    Sketcher.Constraint("DistanceX", 5, 3, -1, 1, Q("24.501992 mm")),
])
pocket7 = body.newObject("PartDesign::Pocket", "Pocket006")
pocket7.Profile = sketch12
pocket7.Type = "ThroughAll"
pocket7.Midplane = True

sketch13 = body.newObject("Sketcher::SketchObject", "Sketch012")
sketch13.AttachmentSupport = (doc.getObject("XZ_Plane"), [""])
sketch13.MapMode = "FlatFace"
sketch13.AttachmentOffset = App.Placement(V(0, 0, -11), App.Rotation())
sketch13.addGeometry([
    Part.Circle(V(-24.701992, -2.7, 0), V(0, 0, 1), 0.6),
    Part.Circle(V(26.739502, -2.7, 0), V(0, 0, 1), 0.6),
], False)
sketch13.addConstraint([
    Sketcher.Constraint("Equal", 0, 1),
    Sketcher.Constraint("Horizontal", 0, 3, 1, 3),
    Sketcher.Constraint("Diameter", 0, Q("1.2 mm")),
    Sketcher.Constraint("DistanceY", 0, 3, -1, 1, Q("2.7 mm")),
    Sketcher.Constraint("DistanceX", -1, 1, 1, 3, Q("26.739502 mm")),
    Sketcher.Constraint("DistanceX", 0, 3, -1, 1, Q("24.701992 mm")),
])
pocket8 = body.newObject("PartDesign::Pocket", "Pocket007")
pocket8.Profile = sketch13
pocket8.Length = 2

sketch14 = body.newObject("Sketcher::SketchObject", "Sketch013")
sketch14.AttachmentSupport = (doc.getObject("XZ_Plane"), [""])
sketch14.MapMode = "FlatFace"
sketch14.AttachmentOffset = App.Placement(V(0, 0, 11), App.Rotation())
sketch14.addGeometry([
    Part.Circle(V(26.739502, -2.7, 0), V(0, 0, 1), 0.6),
    Part.Circle(V(-24.701992, -2.7, 0), V(0, 0, 1), 0.6),
], False)
sketch14.addConstraint([
    Sketcher.Constraint("Equal", 0, 1),
    Sketcher.Constraint("Horizontal", 0, 3, 1, 3),
    Sketcher.Constraint("Diameter", 0, Q("1.2 mm")),
    Sketcher.Constraint("DistanceY", 0, 3, -1, 1, Q("2.7 mm")),
    Sketcher.Constraint("DistanceX", -1, 1, 0, 3, Q("26.739502 mm")),
    Sketcher.Constraint("DistanceX", 1, 3, -1, 1, Q("24.701992 mm")),
])
pocket9 = body.newObject("PartDesign::Pocket", "Pocket008")
pocket9.Profile = sketch14
pocket9.Length = 2
pocket9.Reversed = True

sketch15 = body.newObject("Sketcher::SketchObject", "Sketch014")
sketch15.AttachmentSupport = (doc.getObject("XY_Plane"), [""])
sketch15.MapMode = "FlatFace"
sketch15.AttachmentOffset = App.Placement(V(0, 0, 6.5), App.Rotation())
sketch15.addGeometry([
    Part.ArcOfCircle(Part.Circle(V(0, 0, 0), V(0, 0, 1), 24.2), math.radians(-158.40901), math.radians(158.40901)),
    Part.LineSegment(V(-22.501992, 8.905076, 0), V(-22.501992, -8.905076, 0)),
    Part.Circle(V(0, 0, 0), V(0, 0, 1), 13.5),
], False)
sketch15.addConstraint([
    Sketcher.Constraint("Coincident", 0, 1, 1, 2),
    Sketcher.Constraint("Coincident", 1, 1, 0, 2),
    Sketcher.Constraint("Vertical", 1),
    Sketcher.Constraint("Coincident", 0, 3, -1, 1),
    Sketcher.Constraint("Coincident", 2, 3, -1, 1),
    Sketcher.Constraint("Diameter", 2, Q("27 mm")),
    Sketcher.Constraint("Radius", 0, Q("24.2 mm")),
    Sketcher.Constraint("DistanceY", 1, 2, 1, 1, Q("17.810152 mm")),
])
pad6 = body.newObject("PartDesign::Pad", "Pad005")
pad6.Profile = sketch15
pad6.Length = 0.5

sketch16 = body.newObject("Sketcher::SketchObject", "Sketch015")
sketch16.AttachmentSupport = (doc.getObject("XY_Plane"), [""])
sketch16.MapMode = "FlatFace"
sketch16.AttachmentOffset = App.Placement(V(0, 0, 7), App.Rotation())
sketch16.addGeometry([
    Part.Circle(V(0, 0, 0), V(0, 0, 1), 20.45),
    Part.Circle(V(0, 0, 0), V(0, 0, 1), 19.85),
], False)
sketch16.addConstraint([
    Sketcher.Constraint("Coincident", 0, 3, -1, 1),
    Sketcher.Constraint("Coincident", 1, 3, -1, 1),
    Sketcher.Constraint("Diameter", 0, Q("40.9 mm")),
    Sketcher.Constraint("Diameter", 1, Q("39.7 mm")),
])
pocket10 = body.newObject("PartDesign::Pocket", "Pocket009")
pocket10.Profile = sketch16
pocket10.Length = 0.3

sketch17 = body.newObject("Sketcher::SketchObject", "Sketch016")
sketch17.AttachmentSupport = (doc.getObject("XZ_Plane"), [""])
sketch17.MapMode = "FlatFace"
sketch17.AttachmentOffset = App.Placement(V(0, 0, 25), App.Rotation())
sketch17.addGeometry(Part.Circle(V(-6.5, 4.8, 0), V(0, 0, 1), 1), False)
sketch17.addConstraint([
    Sketcher.Constraint("Diameter", 0, Q("2 mm")),
    Sketcher.Constraint("DistanceX", 0, 3, -1, 1, Q("6.5 mm")),
    Sketcher.Constraint("DistanceY", -1, 1, 0, 3, Q("4.8 mm")),
])
pocket11 = body.newObject("PartDesign::Pocket", "Pocket010")
pocket11.Profile = sketch17
pocket11.Length = 5

doc.recompute()
